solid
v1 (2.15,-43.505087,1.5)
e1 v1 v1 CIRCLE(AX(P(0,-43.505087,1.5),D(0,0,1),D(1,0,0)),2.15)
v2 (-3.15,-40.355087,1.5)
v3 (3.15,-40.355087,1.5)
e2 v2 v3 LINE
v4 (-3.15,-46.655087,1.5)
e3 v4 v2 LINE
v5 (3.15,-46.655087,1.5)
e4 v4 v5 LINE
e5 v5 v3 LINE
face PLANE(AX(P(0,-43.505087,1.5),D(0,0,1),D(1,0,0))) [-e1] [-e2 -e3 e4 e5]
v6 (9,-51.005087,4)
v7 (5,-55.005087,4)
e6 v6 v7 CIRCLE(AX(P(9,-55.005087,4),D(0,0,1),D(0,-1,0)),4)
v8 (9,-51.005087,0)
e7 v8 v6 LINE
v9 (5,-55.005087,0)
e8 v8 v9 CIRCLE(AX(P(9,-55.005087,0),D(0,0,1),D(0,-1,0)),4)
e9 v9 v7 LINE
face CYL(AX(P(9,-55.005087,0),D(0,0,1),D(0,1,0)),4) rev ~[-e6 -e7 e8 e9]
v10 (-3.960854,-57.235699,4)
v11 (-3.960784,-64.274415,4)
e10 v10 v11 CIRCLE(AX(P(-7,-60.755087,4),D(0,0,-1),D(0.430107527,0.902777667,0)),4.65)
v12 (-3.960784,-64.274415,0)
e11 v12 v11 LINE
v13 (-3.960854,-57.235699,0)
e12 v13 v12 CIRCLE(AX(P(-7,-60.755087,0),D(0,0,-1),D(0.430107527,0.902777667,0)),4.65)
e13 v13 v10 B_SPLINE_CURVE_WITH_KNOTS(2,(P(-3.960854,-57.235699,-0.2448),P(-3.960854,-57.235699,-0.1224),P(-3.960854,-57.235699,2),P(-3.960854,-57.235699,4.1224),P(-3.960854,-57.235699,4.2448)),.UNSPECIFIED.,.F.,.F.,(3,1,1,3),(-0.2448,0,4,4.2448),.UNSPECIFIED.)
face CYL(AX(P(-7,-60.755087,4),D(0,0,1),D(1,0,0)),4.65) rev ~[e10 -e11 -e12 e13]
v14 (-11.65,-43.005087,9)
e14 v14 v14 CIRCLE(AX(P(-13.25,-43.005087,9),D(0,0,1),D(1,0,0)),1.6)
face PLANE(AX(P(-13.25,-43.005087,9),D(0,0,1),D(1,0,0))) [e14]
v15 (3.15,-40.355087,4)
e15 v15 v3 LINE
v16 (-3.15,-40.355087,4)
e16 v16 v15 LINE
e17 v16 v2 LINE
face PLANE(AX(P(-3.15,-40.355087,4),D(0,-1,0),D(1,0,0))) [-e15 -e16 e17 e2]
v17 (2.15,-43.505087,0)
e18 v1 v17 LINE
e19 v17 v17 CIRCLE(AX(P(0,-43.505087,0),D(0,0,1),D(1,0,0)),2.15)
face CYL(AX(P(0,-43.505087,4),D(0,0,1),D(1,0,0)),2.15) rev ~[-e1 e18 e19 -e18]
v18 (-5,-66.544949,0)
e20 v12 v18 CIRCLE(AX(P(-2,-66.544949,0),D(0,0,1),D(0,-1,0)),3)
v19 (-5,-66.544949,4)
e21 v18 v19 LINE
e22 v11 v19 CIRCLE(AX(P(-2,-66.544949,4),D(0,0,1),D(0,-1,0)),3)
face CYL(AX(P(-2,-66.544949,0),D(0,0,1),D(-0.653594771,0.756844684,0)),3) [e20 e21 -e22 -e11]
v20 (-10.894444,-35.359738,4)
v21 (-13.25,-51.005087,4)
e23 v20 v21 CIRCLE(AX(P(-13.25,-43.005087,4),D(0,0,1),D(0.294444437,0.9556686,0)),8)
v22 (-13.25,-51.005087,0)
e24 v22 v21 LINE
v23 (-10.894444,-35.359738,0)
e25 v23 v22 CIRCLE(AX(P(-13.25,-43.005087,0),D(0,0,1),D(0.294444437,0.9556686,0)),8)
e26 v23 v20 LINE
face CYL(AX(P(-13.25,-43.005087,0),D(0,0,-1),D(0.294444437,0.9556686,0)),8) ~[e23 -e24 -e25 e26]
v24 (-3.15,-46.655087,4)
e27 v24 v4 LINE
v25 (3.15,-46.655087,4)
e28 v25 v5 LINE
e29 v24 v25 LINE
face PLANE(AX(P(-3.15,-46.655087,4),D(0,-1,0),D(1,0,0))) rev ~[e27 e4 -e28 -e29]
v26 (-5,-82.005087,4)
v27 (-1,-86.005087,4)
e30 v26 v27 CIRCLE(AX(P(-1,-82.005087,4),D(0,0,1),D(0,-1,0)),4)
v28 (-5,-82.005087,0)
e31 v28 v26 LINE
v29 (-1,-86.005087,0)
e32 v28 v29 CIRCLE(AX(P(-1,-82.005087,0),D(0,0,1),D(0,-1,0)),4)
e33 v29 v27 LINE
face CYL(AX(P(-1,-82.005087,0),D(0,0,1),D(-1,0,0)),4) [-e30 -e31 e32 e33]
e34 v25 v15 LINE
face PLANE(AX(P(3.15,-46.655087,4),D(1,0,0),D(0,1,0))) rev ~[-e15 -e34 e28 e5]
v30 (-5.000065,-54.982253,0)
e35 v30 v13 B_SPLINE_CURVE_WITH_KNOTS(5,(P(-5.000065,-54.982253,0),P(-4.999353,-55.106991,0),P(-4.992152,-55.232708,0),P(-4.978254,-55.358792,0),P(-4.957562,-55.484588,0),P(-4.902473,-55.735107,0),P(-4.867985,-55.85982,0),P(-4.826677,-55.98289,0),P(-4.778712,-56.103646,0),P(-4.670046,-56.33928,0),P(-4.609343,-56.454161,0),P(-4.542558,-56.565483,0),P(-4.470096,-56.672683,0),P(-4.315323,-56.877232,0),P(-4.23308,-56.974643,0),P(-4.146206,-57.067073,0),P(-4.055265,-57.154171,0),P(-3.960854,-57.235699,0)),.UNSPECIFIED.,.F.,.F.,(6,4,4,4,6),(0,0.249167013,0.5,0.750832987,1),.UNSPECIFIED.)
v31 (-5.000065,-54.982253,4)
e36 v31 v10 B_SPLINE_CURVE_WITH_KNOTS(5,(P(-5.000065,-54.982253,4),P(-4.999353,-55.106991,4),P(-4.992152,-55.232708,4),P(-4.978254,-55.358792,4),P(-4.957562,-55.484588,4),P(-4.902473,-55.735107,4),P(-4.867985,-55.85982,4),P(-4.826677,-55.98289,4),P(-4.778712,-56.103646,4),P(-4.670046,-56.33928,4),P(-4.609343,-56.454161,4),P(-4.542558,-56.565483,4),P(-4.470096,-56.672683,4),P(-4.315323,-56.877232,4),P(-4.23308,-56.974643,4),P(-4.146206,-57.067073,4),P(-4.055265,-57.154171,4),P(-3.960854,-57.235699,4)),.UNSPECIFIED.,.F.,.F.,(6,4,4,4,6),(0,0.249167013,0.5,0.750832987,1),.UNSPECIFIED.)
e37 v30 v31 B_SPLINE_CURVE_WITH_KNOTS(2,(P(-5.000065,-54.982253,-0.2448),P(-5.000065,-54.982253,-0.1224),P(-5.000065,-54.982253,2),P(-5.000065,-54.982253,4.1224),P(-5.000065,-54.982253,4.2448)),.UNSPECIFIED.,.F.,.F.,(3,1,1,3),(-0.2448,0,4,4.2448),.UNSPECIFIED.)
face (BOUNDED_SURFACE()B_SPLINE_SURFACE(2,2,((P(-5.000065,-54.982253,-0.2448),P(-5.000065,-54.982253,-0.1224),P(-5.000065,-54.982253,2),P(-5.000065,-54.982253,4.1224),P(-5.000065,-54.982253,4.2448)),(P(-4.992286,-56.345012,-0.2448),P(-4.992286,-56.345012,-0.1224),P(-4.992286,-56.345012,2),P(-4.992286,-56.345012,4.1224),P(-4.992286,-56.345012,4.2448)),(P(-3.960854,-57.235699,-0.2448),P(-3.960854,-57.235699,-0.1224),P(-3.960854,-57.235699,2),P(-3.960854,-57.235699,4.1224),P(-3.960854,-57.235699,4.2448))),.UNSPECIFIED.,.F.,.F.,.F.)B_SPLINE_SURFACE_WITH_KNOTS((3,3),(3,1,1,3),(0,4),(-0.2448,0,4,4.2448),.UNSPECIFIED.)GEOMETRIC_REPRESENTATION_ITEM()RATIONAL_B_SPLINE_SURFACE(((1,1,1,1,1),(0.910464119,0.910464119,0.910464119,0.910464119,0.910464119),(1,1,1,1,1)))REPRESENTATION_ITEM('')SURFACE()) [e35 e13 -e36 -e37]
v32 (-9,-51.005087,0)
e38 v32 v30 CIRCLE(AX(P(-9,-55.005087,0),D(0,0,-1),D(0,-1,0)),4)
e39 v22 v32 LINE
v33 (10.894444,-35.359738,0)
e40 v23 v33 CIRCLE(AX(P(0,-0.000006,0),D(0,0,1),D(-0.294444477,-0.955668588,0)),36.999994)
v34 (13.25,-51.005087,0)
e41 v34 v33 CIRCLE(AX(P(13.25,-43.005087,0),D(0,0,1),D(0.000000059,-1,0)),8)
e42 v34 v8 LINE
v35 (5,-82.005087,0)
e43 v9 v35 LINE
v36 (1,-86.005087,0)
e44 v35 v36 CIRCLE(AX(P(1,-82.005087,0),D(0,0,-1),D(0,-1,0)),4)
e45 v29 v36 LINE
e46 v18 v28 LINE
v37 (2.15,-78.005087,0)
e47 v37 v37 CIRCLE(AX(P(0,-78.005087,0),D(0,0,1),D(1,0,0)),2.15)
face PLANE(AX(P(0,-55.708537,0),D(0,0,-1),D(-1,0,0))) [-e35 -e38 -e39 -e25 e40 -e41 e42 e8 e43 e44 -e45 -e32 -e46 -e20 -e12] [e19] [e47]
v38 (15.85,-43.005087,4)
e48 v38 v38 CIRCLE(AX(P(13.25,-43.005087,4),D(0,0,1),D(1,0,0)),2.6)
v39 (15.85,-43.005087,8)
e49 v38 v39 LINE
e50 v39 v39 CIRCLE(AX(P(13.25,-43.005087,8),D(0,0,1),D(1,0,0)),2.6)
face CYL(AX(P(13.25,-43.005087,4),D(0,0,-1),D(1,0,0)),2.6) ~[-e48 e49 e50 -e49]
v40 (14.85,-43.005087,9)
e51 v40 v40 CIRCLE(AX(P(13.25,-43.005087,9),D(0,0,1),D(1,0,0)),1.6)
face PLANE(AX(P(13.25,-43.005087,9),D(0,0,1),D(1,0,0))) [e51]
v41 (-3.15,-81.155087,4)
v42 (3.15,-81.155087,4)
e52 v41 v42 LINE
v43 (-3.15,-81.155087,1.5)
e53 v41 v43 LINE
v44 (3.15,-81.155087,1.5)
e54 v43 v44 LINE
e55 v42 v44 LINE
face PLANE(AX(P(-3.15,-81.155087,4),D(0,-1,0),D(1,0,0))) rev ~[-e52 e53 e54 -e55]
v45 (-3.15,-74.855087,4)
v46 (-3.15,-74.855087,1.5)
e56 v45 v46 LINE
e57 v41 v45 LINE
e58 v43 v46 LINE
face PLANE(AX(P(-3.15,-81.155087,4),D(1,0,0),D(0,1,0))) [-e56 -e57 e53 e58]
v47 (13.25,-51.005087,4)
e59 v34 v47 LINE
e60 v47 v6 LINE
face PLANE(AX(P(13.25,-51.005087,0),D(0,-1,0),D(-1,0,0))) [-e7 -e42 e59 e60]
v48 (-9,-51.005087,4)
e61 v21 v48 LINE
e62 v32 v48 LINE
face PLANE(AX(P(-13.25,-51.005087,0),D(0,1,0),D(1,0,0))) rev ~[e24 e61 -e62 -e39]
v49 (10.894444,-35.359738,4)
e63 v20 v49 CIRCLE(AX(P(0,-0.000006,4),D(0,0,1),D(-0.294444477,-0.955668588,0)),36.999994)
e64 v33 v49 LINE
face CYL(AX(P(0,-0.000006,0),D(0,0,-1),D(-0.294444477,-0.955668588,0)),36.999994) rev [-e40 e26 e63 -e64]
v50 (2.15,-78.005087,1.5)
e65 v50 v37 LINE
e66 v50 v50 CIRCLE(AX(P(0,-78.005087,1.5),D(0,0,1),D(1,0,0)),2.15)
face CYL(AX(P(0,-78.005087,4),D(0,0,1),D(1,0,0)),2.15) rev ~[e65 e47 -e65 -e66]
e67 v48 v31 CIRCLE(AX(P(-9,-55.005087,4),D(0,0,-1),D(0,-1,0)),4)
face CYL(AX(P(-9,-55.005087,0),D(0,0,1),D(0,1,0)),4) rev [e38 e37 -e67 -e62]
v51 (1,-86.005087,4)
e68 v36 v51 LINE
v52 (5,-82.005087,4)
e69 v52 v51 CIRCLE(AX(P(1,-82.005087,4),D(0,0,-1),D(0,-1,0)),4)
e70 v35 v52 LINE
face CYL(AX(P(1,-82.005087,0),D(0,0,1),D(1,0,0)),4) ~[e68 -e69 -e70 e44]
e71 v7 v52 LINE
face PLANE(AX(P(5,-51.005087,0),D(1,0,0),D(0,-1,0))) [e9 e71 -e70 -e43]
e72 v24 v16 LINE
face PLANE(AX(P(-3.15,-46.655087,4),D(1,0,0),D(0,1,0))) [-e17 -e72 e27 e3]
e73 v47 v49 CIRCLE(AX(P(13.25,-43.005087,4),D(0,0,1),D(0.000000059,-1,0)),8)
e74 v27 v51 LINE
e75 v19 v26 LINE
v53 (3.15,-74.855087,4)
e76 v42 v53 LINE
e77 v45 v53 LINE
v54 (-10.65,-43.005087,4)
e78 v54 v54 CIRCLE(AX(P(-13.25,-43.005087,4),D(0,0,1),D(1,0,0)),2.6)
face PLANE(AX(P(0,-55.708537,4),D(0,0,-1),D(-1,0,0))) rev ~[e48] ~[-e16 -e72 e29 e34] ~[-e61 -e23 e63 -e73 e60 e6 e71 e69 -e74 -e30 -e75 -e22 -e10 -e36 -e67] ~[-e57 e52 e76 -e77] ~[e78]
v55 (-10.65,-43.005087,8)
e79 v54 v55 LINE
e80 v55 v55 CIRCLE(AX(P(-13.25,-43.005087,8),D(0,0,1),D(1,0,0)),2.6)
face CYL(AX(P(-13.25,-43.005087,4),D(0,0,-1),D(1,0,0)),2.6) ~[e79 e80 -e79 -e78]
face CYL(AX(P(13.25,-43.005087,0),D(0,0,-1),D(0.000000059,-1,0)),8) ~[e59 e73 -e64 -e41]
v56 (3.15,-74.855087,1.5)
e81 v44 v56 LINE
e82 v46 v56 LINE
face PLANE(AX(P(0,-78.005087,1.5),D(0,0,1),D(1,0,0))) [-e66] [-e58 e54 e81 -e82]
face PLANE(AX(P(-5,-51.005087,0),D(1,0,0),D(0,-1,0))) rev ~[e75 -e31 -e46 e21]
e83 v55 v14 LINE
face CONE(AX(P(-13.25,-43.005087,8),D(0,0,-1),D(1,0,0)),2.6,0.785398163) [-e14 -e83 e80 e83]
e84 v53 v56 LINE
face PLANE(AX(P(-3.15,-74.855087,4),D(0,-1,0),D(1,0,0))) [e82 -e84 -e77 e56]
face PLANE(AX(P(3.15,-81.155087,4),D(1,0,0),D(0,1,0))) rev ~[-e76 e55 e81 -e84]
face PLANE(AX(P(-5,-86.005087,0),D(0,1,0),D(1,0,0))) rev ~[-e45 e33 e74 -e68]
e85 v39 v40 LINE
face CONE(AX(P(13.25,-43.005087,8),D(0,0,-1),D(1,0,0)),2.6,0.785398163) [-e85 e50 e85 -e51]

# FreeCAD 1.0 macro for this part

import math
import FreeCAD as App
import Part
import Sketcher

V = App.Vector
Q = App.Units.Quantity


def edges_at(feature, points):
    """Names of the edges that pass closest to the given points."""
    edges = feature.Shape.Edges
    near = lambda p: min(range(len(edges)), key=lambda i: edges[i].distToShape(Part.Vertex(*p))[0])
    return sorted({f"Edge{near(p) + 1}" for p in points})

doc = App.newDocument("Part")
params = doc.addObject("Spreadsheet::Sheet", "Params")
for row, (alias, value) in enumerate([
    ("sketch1_radius", "8 mm"),
    ("sketch1_width", "10 mm"),
    ("sketch1_height", "35 mm"),
    ("sketch1_width2", "8.25 mm"),
    ("pad1_length", "4 mm"),
    ("sketch2_diameter", "5.2 mm"),
    ("pad2_length", "5 mm"),
    ("sketch3_diameter", "4.3 mm"),
    ("sketch4_width", "6.3 mm"),
    ("pocket2_length", "2.5 mm"),
    ("fillet_radius", "4 mm"),
    ("chamfer_size", "1 mm"),
    ("sketch5_diameter", "9.3 mm"),
    ("fillet2_radius", "3 mm"),
], start=1):
    params.set(f"A{row}", alias)
    params.set(f"B{row}", "=" + value)
    params.setAlias(f"B{row}", alias)

body = doc.addObject("PartDesign::Body", "Body")

# Sketch on XY plane
sketch1 = body.newObject("Sketcher::SketchObject", "Sketch")
sketch1.AttachmentSupport = (doc.getObject("XY_Plane"), [""])
sketch1.MapMode = "FlatFace"
sketch1.addGeometry([
    Part.ArcOfCircle(Part.Circle(V(0, -0.000006, 0), V(0, 0, 1), 36.999994), math.radians(-107.124229), math.radians(-72.875771)),  # 0
    Part.ArcOfCircle(Part.Circle(V(-13.25, -43.005087, 0), V(0, 0, 1), 8), math.radians(72.875774), math.radians(269.999997)),  # 1
    Part.LineSegment(V(-13.25, -51.005087, 0), V(-5, -51.005087, 0)),  # 2
    Part.LineSegment(V(-5, -51.005087, 0), V(-5, -86.005087, 0)),  # 3
    Part.LineSegment(V(-5, -86.005087, 0), V(5, -86.005087, 0)),  # 4
    Part.LineSegment(V(5, -86.005087, 0), V(5, -51.005087, 0)),  # 5
    Part.LineSegment(V(5, -51.005087, 0), V(13.25, -51.005087, 0)),  # 6
    Part.ArcOfCircle(Part.Circle(V(13.25, -43.005087, 0), V(0, 0, 1), 8), math.radians(-89.999997), math.radians(107.124226)),  # 7
], False)
sketch1.addConstraint([
    Sketcher.Constraint("Tangent", 0, 1, 1, 1),
    Sketcher.Constraint("Tangent", 1, 2, 2, 1),
    Sketcher.Constraint("Coincident", 2, 2, 3, 1),
    Sketcher.Constraint("Coincident", 3, 2, 4, 1),
    Sketcher.Constraint("Coincident", 4, 2, 5, 1),
    Sketcher.Constraint("Coincident", 5, 2, 6, 1),
    Sketcher.Constraint("Tangent", 6, 2, 7, 1),
    Sketcher.Constraint("Tangent", 7, 2, 0, 2),
    Sketcher.Constraint("Horizontal", 2),
    Sketcher.Constraint("Vertical", 3),
    Sketcher.Constraint("Horizontal", 4),
    Sketcher.Constraint("Vertical", 5),
    Sketcher.Constraint("Horizontal", 6),
    Sketcher.Constraint("Coincident", 0, 3, -1, 1),
    Sketcher.Constraint("Equal", 1, 7),
    Sketcher.Constraint("Symmetric", 2, 2, 5, 2, -2),
    Sketcher.Constraint("Radius", 1, Q("8 mm")),
    Sketcher.Constraint("DistanceX", 4, 1, 4, 2, Q("10 mm")),
    Sketcher.Constraint("DistanceY", 3, 2, 3, 1, Q("35 mm")),
    Sketcher.Constraint("DistanceX", 2, 1, 2, 2, Q("8.25 mm")),
    Sketcher.Constraint("Radius", 0, Q("36.999994 mm")),
])
sketch1.setExpression("Constraints[16]", "Params.sketch1_radius")
sketch1.setExpression("Constraints[17]", "Params.sketch1_width")
sketch1.setExpression("Constraints[18]", "Params.sketch1_height")
sketch1.setExpression("Constraints[19]", "Params.sketch1_width2")
pad1 = body.newObject("PartDesign::Pad", "Pad")
pad1.Profile = sketch1
pad1.setExpression("Length", "Params.pad1_length")

# Sketch on XY plane
sketch2 = body.newObject("Sketcher::SketchObject", "Sketch001")
sketch2.AttachmentSupport = (doc.getObject("XY_Plane"), [""])
sketch2.MapMode = "FlatFace"
sketch2.AttachmentOffset = App.Placement(V(0, 0, 4), App.Rotation())
sketch2.addGeometry([
    Part.Circle(V(-13.25, -43.005087, 0), V(0, 0, 1), 2.6),
    Part.Circle(V(13.25, -43.005087, 0), V(0, 0, 1), 2.6),
], False)
sketch2.addConstraint([
    Sketcher.Constraint("Equal", 0, 1),
    Sketcher.Constraint("Symmetric", 0, 3, 1, 3, -2),
    Sketcher.Constraint("Diameter", 0, Q("5.2 mm")),
    Sketcher.Constraint("DistanceX", 0, 3, 1, 3, Q("26.5 mm")),
    Sketcher.Constraint("DistanceY", 0, 3, -1, 1, Q("43.005087 mm")),
])
sketch2.setExpression("Constraints[2]", "Params.sketch2_diameter")
pad2 = body.newObject("PartDesign::Pad", "Pad001")
pad2.Profile = sketch2
pad2.setExpression("Length", "Params.pad2_length")

# Sketch on XY plane
sketch3 = body.newObject("Sketcher::SketchObject", "Sketch002")
sketch3.AttachmentSupport = (doc.getObject("XY_Plane"), [""])
sketch3.MapMode = "FlatFace"
sketch3.AttachmentOffset = App.Placement(V(0, 0, 4), App.Rotation())
sketch3.addGeometry([
    Part.Circle(V(0, -43.505087, 0), V(0, 0, 1), 2.15),
    Part.Circle(V(0, -78.005087, 0), V(0, 0, 1), 2.15),
], False)
sketch3.addConstraint([
    Sketcher.Constraint("Equal", 0, 1),
    Sketcher.Constraint("PointOnObject", 0, 3, -2),
    Sketcher.Constraint("PointOnObject", 1, 3, -2),
    Sketcher.Constraint("Diameter", 0, Q("4.3 mm")),
    Sketcher.Constraint("DistanceY", 1, 3, 0, 3, Q("34.5 mm")),
    Sketcher.Constraint("DistanceY", 0, 3, -1, 1, Q("43.505087 mm")),
])
sketch3.setExpression("Constraints[3]", "Params.sketch3_diameter")
pocket1 = body.newObject("PartDesign::Pocket", "Pocket")
pocket1.Profile = sketch3
pocket1.Type = "ThroughAll"

# Sketch on XY plane
sketch4 = body.newObject("Sketcher::SketchObject", "Sketch003")
sketch4.AttachmentSupport = (doc.getObject("XY_Plane"), [""])
sketch4.MapMode = "FlatFace"
sketch4.AttachmentOffset = App.Placement(V(0, 0, 4), App.Rotation())
sketch4.addGeometry([
    Part.LineSegment(V(-3.15, -40.355087, 0), V(-3.15, -46.655087, 0)),  # 0
    Part.LineSegment(V(-3.15, -46.655087, 0), V(3.15, -46.655087, 0)),  # 1
    Part.LineSegment(V(3.15, -46.655087, 0), V(3.15, -40.355087, 0)),  # 2
    Part.LineSegment(V(3.15, -40.355087, 0), V(-3.15, -40.355087, 0)),  # 3
    Part.LineSegment(V(-3.15, -74.855087, 0), V(-3.15, -81.155087, 0)),  # 4
    Part.LineSegment(V(-3.15, -81.155087, 0), V(3.15, -81.155087, 0)),  # 5
    Part.LineSegment(V(3.15, -81.155087, 0), V(3.15, -74.855087, 0)),  # 6
    Part.LineSegment(V(3.15, -74.855087, 0), V(-3.15, -74.855087, 0)),  # 7
], False)
sketch4.addConstraint([
    Sketcher.Constraint("Coincident", 0, 2, 1, 1),
    Sketcher.Constraint("Coincident", 1, 2, 2, 1),
    Sketcher.Constraint("Coincident", 2, 2, 3, 1),
    Sketcher.Constraint("Coincident", 3, 2, 0, 1),
    Sketcher.Constraint("Coincident", 4, 2, 5, 1),
    Sketcher.Constraint("Coincident", 5, 2, 6, 1),
    Sketcher.Constraint("Coincident", 6, 2, 7, 1),
    Sketcher.Constraint("Coincident", 7, 2, 4, 1),
    Sketcher.Constraint("Vertical", 0),
    Sketcher.Constraint("Horizontal", 1),
    Sketcher.Constraint("Vertical", 2),
    Sketcher.Constraint("Horizontal", 3),
    Sketcher.Constraint("Vertical", 4),
    Sketcher.Constraint("Horizontal", 5),
    Sketcher.Constraint("Vertical", 6),
    Sketcher.Constraint("Horizontal", 7),
    Sketcher.Constraint("Vertical", 3, 2, 4, 2),
    Sketcher.Constraint("Vertical", 2, 2, 5, 2),
    Sketcher.Constraint("Equal", 7, 0),
    Sketcher.Constraint("Equal", 2, 4),
    Sketcher.Constraint("DistanceX", 1, 1, 1, 2, Q("6.3 mm")),
    Sketcher.Constraint("DistanceY", 4, 2, 0, 2, Q("34.5 mm")),
    Sketcher.Constraint("DistanceX", 0, 2, -1, 1, Q("3.15 mm")),
    Sketcher.Constraint("DistanceY", 0, 2, -1, 1, Q("46.655087 mm")),
])
sketch4.setExpression("Constraints[20]", "Params.sketch4_width")
pocket2 = body.newObject("PartDesign::Pocket", "Pocket001")
pocket2.Profile = sketch4
pocket2.setExpression("Length", "Params.pocket2_length")
doc.recompute()

fillet = body.newObject("PartDesign::Fillet", "Fillet")
fillet.Base = (pocket2, edges_at(pocket2, [
    (5, -51.005, 2),
    (-5, -51.005, 2),
    (-5, -86.005, 2),
    (5, -86.005, 2),
]))
fillet.setExpression("Radius", "Params.fillet_radius")
doc.recompute()

chamfer = body.newObject("PartDesign::Chamfer", "Chamfer")
chamfer.Base = (fillet, edges_at(fillet, [(-15.85, -43.005, 9), (10.65, -43.005, 9)]))
chamfer.setExpression("Size", "Params.chamfer_size")

# Sketch on XY plane
sketch5 = body.newObject("Sketcher::SketchObject", "Sketch004")
sketch5.AttachmentSupport = (doc.getObject("XY_Plane"), [""])
sketch5.MapMode = "FlatFace"
sketch5.AttachmentOffset = App.Placement(V(0, 0, 4), App.Rotation())
sketch5.addGeometry(Part.Circle(V(-7, -60.755087, 0), V(0, 0, 1), 4.65), False)
sketch5.addConstraint([
    Sketcher.Constraint("Diameter", 0, Q("9.3 mm")),
    Sketcher.Constraint("DistanceX", 0, 3, -1, 1, Q("7 mm")),
    Sketcher.Constraint("DistanceY", 0, 3, -1, 1, Q("60.755087 mm")),
])
sketch5.setExpression("Constraints[0]", "Params.sketch5_diameter")
pocket3 = body.newObject("PartDesign::Pocket", "Pocket002")
pocket3.Profile = sketch5
pocket3.Type = "ThroughAll"
doc.recompute()

fillet2 = body.newObject("PartDesign::Fillet", "Fillet001")
fillet2.Base = (pocket3, edges_at(pocket3, [(-5, -56.557, 2), (-5, -64.953, 2)]))
fillet2.setExpression("Radius", "Params.fillet2_radius")

doc.recompute()
